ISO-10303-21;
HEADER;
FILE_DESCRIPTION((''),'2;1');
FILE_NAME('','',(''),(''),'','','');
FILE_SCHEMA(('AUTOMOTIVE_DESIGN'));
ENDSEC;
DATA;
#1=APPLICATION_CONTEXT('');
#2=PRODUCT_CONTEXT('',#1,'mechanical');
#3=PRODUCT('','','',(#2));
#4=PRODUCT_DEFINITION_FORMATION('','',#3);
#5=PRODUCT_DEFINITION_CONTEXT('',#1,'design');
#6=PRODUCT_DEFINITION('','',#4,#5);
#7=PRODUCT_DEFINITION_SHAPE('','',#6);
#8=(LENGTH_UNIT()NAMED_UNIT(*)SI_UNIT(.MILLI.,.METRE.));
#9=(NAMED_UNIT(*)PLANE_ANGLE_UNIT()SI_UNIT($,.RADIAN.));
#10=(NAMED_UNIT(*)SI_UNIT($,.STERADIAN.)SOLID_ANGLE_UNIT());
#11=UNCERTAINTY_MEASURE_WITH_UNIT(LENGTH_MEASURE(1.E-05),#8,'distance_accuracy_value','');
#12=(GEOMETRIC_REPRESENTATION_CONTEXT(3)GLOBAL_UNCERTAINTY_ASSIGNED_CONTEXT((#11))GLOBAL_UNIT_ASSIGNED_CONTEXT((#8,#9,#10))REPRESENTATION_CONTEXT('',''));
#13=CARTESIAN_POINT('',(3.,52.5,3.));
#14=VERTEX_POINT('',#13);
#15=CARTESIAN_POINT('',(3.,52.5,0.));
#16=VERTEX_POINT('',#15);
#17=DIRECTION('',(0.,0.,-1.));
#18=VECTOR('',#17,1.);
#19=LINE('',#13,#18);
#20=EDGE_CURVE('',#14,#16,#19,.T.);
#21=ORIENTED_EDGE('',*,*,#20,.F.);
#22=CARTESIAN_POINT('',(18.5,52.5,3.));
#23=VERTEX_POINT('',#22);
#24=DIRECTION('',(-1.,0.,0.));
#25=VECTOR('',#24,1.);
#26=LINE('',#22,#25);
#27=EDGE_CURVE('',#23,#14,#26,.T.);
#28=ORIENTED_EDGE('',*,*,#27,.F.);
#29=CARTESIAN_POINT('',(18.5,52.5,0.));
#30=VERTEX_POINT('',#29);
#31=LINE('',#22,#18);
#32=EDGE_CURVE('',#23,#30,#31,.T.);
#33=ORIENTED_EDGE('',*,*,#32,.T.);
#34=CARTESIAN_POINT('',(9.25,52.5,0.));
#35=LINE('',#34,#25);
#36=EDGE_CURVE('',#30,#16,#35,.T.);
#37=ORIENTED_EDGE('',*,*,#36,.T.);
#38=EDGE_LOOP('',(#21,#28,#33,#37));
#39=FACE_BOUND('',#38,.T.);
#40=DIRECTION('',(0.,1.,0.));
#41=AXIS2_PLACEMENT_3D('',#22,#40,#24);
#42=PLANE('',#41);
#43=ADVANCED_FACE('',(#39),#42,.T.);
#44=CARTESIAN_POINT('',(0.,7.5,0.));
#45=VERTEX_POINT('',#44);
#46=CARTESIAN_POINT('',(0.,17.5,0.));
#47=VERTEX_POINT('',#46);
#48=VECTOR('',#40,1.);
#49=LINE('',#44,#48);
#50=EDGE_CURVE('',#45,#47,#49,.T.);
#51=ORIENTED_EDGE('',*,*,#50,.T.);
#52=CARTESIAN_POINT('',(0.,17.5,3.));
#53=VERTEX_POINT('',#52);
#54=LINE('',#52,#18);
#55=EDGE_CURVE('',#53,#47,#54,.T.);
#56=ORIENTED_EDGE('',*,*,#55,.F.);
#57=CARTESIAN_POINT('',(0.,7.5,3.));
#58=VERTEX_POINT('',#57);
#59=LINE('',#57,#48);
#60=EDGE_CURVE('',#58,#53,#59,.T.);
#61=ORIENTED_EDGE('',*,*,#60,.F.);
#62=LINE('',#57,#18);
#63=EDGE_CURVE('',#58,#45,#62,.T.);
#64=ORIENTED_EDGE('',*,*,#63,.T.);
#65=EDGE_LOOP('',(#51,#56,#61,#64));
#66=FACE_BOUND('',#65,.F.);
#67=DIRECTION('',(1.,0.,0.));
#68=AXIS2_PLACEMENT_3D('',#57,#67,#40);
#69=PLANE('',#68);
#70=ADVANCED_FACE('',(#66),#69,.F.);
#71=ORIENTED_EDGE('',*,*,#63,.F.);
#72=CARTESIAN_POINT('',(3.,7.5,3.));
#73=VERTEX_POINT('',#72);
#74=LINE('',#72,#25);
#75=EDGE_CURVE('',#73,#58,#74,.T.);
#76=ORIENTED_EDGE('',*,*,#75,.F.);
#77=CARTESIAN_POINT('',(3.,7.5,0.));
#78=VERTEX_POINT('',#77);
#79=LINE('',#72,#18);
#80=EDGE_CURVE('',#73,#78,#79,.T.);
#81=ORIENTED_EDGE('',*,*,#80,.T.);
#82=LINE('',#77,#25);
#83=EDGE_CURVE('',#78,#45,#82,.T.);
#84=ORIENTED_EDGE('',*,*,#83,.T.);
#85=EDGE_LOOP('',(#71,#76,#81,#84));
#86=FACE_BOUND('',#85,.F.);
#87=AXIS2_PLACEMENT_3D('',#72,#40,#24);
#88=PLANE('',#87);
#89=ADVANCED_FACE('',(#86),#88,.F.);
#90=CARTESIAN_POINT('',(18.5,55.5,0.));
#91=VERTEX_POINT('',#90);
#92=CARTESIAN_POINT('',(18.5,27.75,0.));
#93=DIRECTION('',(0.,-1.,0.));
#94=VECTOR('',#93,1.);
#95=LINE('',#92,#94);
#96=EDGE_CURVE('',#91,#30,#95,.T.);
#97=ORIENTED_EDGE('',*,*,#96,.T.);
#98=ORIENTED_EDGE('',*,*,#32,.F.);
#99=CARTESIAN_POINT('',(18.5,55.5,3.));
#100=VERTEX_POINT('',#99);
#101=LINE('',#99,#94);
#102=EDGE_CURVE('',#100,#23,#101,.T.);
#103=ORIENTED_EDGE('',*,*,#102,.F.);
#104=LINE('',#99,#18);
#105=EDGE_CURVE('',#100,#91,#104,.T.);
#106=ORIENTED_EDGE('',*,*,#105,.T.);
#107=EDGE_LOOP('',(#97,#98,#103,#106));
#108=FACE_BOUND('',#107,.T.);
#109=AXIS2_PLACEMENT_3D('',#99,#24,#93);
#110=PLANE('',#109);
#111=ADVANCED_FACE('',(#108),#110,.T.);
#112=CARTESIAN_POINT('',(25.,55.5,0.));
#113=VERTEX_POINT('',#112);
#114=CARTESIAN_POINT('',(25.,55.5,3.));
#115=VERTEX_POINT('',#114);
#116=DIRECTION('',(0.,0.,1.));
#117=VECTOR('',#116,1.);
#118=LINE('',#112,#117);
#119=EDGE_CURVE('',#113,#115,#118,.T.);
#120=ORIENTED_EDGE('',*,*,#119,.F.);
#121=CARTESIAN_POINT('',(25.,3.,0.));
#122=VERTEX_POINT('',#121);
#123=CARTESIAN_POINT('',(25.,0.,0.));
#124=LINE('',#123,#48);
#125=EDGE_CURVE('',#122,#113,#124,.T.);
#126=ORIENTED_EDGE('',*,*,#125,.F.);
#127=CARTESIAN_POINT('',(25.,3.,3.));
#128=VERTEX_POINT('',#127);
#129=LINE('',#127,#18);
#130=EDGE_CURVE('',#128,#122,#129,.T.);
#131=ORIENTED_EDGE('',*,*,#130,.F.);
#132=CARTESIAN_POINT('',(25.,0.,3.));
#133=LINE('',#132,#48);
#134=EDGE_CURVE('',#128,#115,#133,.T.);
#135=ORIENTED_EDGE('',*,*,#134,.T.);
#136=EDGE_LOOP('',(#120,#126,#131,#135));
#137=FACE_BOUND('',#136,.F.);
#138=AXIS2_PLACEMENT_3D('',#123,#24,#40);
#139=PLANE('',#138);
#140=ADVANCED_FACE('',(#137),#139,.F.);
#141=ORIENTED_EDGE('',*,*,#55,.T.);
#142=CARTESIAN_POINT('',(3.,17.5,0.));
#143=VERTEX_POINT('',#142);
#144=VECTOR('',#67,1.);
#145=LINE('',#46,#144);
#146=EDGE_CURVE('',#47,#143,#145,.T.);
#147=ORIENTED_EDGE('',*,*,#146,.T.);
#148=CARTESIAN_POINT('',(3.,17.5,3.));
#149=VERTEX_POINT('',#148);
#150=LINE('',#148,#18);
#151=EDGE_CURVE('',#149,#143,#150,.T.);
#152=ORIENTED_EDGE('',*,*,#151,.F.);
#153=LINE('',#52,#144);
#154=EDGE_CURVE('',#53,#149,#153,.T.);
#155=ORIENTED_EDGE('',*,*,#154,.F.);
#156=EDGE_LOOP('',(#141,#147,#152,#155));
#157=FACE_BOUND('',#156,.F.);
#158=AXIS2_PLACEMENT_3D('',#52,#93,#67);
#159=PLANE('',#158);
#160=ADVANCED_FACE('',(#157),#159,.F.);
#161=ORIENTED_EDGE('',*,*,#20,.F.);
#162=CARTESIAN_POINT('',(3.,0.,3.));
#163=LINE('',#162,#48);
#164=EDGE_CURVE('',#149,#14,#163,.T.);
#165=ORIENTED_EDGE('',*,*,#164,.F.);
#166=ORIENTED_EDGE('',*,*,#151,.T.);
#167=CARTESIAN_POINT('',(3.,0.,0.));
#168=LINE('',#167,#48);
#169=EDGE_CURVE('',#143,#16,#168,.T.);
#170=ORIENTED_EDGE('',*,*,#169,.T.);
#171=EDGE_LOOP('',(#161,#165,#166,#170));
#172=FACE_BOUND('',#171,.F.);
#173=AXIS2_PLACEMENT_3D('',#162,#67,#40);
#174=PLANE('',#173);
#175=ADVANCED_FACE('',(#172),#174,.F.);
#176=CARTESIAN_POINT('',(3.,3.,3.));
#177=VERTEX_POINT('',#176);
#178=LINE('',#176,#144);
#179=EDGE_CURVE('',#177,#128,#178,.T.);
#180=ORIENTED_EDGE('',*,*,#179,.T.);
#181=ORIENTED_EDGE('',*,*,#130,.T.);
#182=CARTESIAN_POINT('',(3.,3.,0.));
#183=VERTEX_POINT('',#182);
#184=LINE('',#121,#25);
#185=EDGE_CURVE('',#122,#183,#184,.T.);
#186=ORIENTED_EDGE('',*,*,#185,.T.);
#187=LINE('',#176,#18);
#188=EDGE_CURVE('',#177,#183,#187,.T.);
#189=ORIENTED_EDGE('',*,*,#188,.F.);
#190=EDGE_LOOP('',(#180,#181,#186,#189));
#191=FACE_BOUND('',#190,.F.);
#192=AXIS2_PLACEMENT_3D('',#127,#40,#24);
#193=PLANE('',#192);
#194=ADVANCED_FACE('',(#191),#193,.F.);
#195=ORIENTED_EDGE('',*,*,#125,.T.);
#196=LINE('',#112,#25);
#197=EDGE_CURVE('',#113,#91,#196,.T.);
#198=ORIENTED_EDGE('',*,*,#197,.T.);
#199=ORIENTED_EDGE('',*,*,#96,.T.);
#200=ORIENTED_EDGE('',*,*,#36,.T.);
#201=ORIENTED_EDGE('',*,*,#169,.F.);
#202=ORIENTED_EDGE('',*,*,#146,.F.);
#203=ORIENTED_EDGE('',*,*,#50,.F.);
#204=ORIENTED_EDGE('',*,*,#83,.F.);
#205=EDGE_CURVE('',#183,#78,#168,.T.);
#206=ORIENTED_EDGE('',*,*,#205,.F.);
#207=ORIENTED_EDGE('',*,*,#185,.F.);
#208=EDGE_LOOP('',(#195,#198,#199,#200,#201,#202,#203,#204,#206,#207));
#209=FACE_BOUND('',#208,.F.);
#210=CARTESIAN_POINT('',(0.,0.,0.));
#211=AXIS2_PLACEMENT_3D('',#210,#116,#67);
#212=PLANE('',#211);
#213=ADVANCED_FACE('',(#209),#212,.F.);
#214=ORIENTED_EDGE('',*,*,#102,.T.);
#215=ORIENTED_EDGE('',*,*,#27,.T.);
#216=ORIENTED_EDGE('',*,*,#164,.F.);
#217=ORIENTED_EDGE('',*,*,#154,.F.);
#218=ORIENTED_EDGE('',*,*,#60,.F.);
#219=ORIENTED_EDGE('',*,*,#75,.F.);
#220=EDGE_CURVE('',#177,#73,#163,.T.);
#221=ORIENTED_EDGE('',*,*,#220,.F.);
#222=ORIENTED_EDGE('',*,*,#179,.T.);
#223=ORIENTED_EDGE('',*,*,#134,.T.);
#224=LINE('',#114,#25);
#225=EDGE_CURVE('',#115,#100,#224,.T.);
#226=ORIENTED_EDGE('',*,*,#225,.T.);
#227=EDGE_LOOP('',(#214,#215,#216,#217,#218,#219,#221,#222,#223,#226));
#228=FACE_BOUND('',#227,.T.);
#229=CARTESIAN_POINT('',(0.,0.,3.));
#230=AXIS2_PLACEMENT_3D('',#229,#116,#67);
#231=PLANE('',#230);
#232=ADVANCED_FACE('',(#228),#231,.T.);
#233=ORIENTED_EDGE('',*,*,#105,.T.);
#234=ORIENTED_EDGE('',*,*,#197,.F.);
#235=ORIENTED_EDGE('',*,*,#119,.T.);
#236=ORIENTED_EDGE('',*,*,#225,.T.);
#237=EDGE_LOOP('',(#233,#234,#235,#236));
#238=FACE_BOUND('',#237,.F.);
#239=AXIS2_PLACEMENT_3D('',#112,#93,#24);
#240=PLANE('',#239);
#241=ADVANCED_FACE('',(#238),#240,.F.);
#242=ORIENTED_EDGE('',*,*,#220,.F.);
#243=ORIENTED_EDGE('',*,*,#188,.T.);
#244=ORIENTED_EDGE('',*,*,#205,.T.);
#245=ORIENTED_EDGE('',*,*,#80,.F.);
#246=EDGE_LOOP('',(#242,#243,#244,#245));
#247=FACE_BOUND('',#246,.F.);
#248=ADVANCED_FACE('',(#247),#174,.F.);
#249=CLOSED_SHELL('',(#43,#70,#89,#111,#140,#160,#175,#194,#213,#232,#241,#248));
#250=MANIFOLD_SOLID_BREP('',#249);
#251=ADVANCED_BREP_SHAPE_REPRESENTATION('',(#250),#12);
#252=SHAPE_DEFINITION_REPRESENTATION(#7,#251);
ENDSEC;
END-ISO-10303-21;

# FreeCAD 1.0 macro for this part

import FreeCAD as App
import Part
import Sketcher
from FreeCAD import Vector
Q = App.Units.Quantity

doc = App.newDocument("Part")
body = doc.addObject("PartDesign::Body", "Body")

# Sketch on XY plane
sketch1 = body.newObject("Sketcher::SketchObject", "Sketch")
sketch1.AttachmentSupport = (doc.getObject("XY_Plane"), [""])
sketch1.MapMode = "FlatFace"
sketch1.addGeometry(Part.LineSegment(Vector(0, 56, 0), Vector(0, 0, 0)), False)
sketch1.addGeometry(Part.LineSegment(Vector(0, 0, 0), Vector(25, 0, 0)), False)
sketch1.addGeometry(Part.LineSegment(Vector(25, 0, 0), Vector(25, 56, 0)), False)
sketch1.addGeometry(Part.LineSegment(Vector(25, 56, 0), Vector(0, 56, 0)), False)
sketch1.addConstraint(Sketcher.Constraint("Coincident", 0, 2, 1, 1))
sketch1.addConstraint(Sketcher.Constraint("Coincident", 1, 2, 2, 1))
sketch1.addConstraint(Sketcher.Constraint("Coincident", 2, 2, 3, 1))
sketch1.addConstraint(Sketcher.Constraint("Coincident", 3, 2, 0, 1))
sketch1.addConstraint(Sketcher.Constraint("Vertical", 0))
sketch1.addConstraint(Sketcher.Constraint("Horizontal", 1))
sketch1.addConstraint(Sketcher.Constraint("Vertical", 2))
sketch1.addConstraint(Sketcher.Constraint("Horizontal", 3))
sketch1.addConstraint(Sketcher.Constraint("Coincident", 0, 2, -1, 1))
sketch1.addConstraint(Sketcher.Constraint("DistanceX", 1, 1, 1, 2, Q("25 mm")))
sketch1.addConstraint(Sketcher.Constraint("DistanceY", 0, 2, 0, 1, Q("55.5 mm")))
pad1 = body.newObject("PartDesign::Pad", "Pad")
pad1.Profile = sketch1
pad1.Length = 3

# Sketch on XY plane
sketch2 = body.newObject("Sketcher::SketchObject", "Sketch001")
sketch2.AttachmentSupport = (doc.getObject("XY_Plane"), [""])
sketch2.MapMode = "FlatFace"
sketch2.AttachmentOffset = App.Placement(Vector(0, 0, 3), App.Rotation())
sketch2.addGeometry(Part.LineSegment(Vector(3, 55.5, 0), Vector(0, 55.5, 0)), False)
sketch2.addGeometry(Part.LineSegment(Vector(0, 55.5, 0), Vector(0, 0, 0)), False)
sketch2.addGeometry(Part.LineSegment(Vector(0, 0, 0), Vector(3, 0, 0)), False)
sketch2.addGeometry(Part.LineSegment(Vector(3, 0, 0), Vector(3, 55.5, 0)), False)
sketch2.addConstraint(Sketcher.Constraint("Coincident", 0, 2, 1, 1))
sketch2.addConstraint(Sketcher.Constraint("Coincident", 1, 2, 2, 1))
sketch2.addConstraint(Sketcher.Constraint("Coincident", 2, 2, 3, 1))
sketch2.addConstraint(Sketcher.Constraint("Coincident", 3, 2, 0, 1))
sketch2.addConstraint(Sketcher.Constraint("Horizontal", 0))
sketch2.addConstraint(Sketcher.Constraint("Vertical", 1))
sketch2.addConstraint(Sketcher.Constraint("Horizontal", 2))
sketch2.addConstraint(Sketcher.Constraint("Vertical", 3))
sketch2.addConstraint(Sketcher.Constraint("Coincident", 1, 2, -1, 1))
sketch2.addConstraint(Sketcher.Constraint("DistanceX", 0, 2, 0, 1, Q("3 mm")))
sketch2.addConstraint(Sketcher.Constraint("DistanceY", 1, 2, 1, 1, Q("55.5 mm")))
pocket1 = body.newObject("PartDesign::Pocket", "Pocket")
pocket1.Profile = sketch2
pocket1.Type = "ThroughAll"

# Sketch on XY plane
sketch3 = body.newObject("Sketcher::SketchObject", "Sketch002")
sketch3.AttachmentSupport = (doc.getObject("XY_Plane"), [""])
sketch3.MapMode = "FlatFace"
sketch3.AttachmentOffset = App.Placement(Vector(0, 0, 3), App.Rotation())
sketch3.addGeometry(Part.LineSegment(Vector(3, 3, 0), Vector(3, 0, 0)), False)
sketch3.addGeometry(Part.LineSegment(Vector(3, 0, 0), Vector(8, 0, 0)), False)
sketch3.addGeometry(Part.LineSegment(Vector(8, 0, 0), Vector(8, 3, 0)), False)
sketch3.addGeometry(Part.LineSegment(Vector(8, 3, 0), Vector(3, 3, 0)), False)
sketch3.addGeometry(Part.LineSegment(Vector(18, 3, 0), Vector(18, 0, 0)), False)
sketch3.addGeometry(Part.LineSegment(Vector(18, 0, 0), Vector(25, 0, 0)), False)
sketch3.addGeometry(Part.LineSegment(Vector(25, 0, 0), Vector(25, 3, 0)), False)
sketch3.addGeometry(Part.LineSegment(Vector(25, 3, 0), Vector(18, 3, 0)), False)
sketch3.addConstraint(Sketcher.Constraint("Coincident", 0, 2, 1, 1))
sketch3.addConstraint(Sketcher.Constraint("Coincident", 1, 2, 2, 1))
sketch3.addConstraint(Sketcher.Constraint("Coincident", 2, 2, 3, 1))
sketch3.addConstraint(Sketcher.Constraint("Coincident", 3, 2, 0, 1))
sketch3.addConstraint(Sketcher.Constraint("Coincident", 4, 2, 5, 1))
sketch3.addConstraint(Sketcher.Constraint("Coincident", 5, 2, 6, 1))
sketch3.addConstraint(Sketcher.Constraint("Coincident", 6, 2, 7, 1))
sketch3.addConstraint(Sketcher.Constraint("Coincident", 7, 2, 4, 1))
sketch3.addConstraint(Sketcher.Constraint("Vertical", 0))
sketch3.addConstraint(Sketcher.Constraint("Horizontal", 1))
sketch3.addConstraint(Sketcher.Constraint("Vertical", 2))
sketch3.addConstraint(Sketcher.Constraint("Horizontal", 3))
sketch3.addConstraint(Sketcher.Constraint("Vertical", 4))
sketch3.addConstraint(Sketcher.Constraint("Horizontal", 5))
sketch3.addConstraint(Sketcher.Constraint("Vertical", 6))
sketch3.addConstraint(Sketcher.Constraint("Horizontal", 7))
sketch3.addConstraint(Sketcher.Constraint("PointOnObject", 0, 2, -1))
sketch3.addConstraint(Sketcher.Constraint("PointOnObject", 4, 2, -1))
sketch3.addConstraint(Sketcher.Constraint("Horizontal", 3, 2, 6, 2))
sketch3.addConstraint(Sketcher.Constraint("DistanceX", 1, 1, 1, 2, Q("5 mm")))
sketch3.addConstraint(Sketcher.Constraint("DistanceY", 0, 2, 0, 1, Q("3 mm")))
sketch3.addConstraint(Sketcher.Constraint("DistanceX", -1, 1, 0, 2, Q("3 mm")))
sketch3.addConstraint(Sketcher.Constraint("DistanceX", 1, 2, 4, 2, Q("10 mm")))
sketch3.addConstraint(Sketcher.Constraint("DistanceX", 5, 1, 5, 2, Q("7 mm")))
pocket2 = body.newObject("PartDesign::Pocket", "Pocket001")
pocket2.Profile = sketch3
pocket2.Type = "ThroughAll"

# Sketch on XY plane
sketch4 = body.newObject("Sketcher::SketchObject", "Sketch003")
sketch4.AttachmentSupport = (doc.getObject("XY_Plane"), [""])
sketch4.MapMode = "FlatFace"
sketch4.AttachmentOffset = App.Placement(Vector(0, 0, 3), App.Rotation())
sketch4.addGeometry(Part.LineSegment(Vector(18.5, 52.5, 0), Vector(18.5, 55.5, 0)), False)
sketch4.addGeometry(Part.LineSegment(Vector(18.5, 55.5, 0), Vector(3, 55.5, 0)), False)
sketch4.addGeometry(Part.LineSegment(Vector(3, 55.5, 0), Vector(3, 52.5, 0)), False)
sketch4.addGeometry(Part.LineSegment(Vector(3, 52.5, 0), Vector(18.5, 52.5, 0)), False)
sketch4.addConstraint(Sketcher.Constraint("Coincident", 0, 2, 1, 1))
sketch4.addConstraint(Sketcher.Constraint("Coincident", 1, 2, 2, 1))
sketch4.addConstraint(Sketcher.Constraint("Coincident", 2, 2, 3, 1))
sketch4.addConstraint(Sketcher.Constraint("Coincident", 3, 2, 0, 1))
sketch4.addConstraint(Sketcher.Constraint("Vertical", 0))
sketch4.addConstraint(Sketcher.Constraint("Horizontal", 1))
sketch4.addConstraint(Sketcher.Constraint("Vertical", 2))
sketch4.addConstraint(Sketcher.Constraint("Horizontal", 3))
sketch4.addConstraint(Sketcher.Constraint("DistanceY", 0, 1, 0, 2, Q("3 mm")))
sketch4.addConstraint(Sketcher.Constraint("DistanceX", -1, 1, 1, 2, Q("3 mm")))
sketch4.addConstraint(Sketcher.Constraint("DistanceX", 1, 2, 1, 1, Q("15.5 mm")))
sketch4.addConstraint(Sketcher.Constraint("DistanceY", -1, 1, 0, 2, Q("55.5 mm")))
pocket3 = body.newObject("PartDesign::Pocket", "Pocket002")
pocket3.Profile = sketch4
pocket3.Type = "ThroughAll"

# Sketch on XY plane
sketch5 = body.newObject("Sketcher::SketchObject", "Sketch004")
sketch5.AttachmentSupport = (doc.getObject("XY_Plane"), [""])
sketch5.MapMode = "FlatFace"
sketch5.AttachmentOffset = App.Placement(Vector(0, 0, 3), App.Rotation())
sketch5.addGeometry(Part.LineSegment(Vector(8, 3, 0), Vector(8, 0, 0)), False)
sketch5.addGeometry(Part.LineSegment(Vector(8, 0, 0), Vector(18, 0, 0)), False)
sketch5.addGeometry(Part.LineSegment(Vector(18, 0, 0), Vector(18, 3, 0)), False)
sketch5.addGeometry(Part.LineSegment(Vector(18, 3, 0), Vector(8, 3, 0)), False)
sketch5.addConstraint(Sketcher.Constraint("Coincident", 0, 2, 1, 1))
sketch5.addConstraint(Sketcher.Constraint("Coincident", 1, 2, 2, 1))
sketch5.addConstraint(Sketcher.Constraint("Coincident", 2, 2, 3, 1))
sketch5.addConstraint(Sketcher.Constraint("Coincident", 3, 2, 0, 1))
sketch5.addConstraint(Sketcher.Constraint("Vertical", 0))
sketch5.addConstraint(Sketcher.Constraint("Horizontal", 1))
sketch5.addConstraint(Sketcher.Constraint("Vertical", 2))
sketch5.addConstraint(Sketcher.Constraint("Horizontal", 3))
sketch5.addConstraint(Sketcher.Constraint("PointOnObject", 0, 2, -1))
sketch5.addConstraint(Sketcher.Constraint("DistanceX", 1, 1, 1, 2, Q("10 mm")))
sketch5.addConstraint(Sketcher.Constraint("DistanceY", 0, 2, 0, 1, Q("3 mm")))
sketch5.addConstraint(Sketcher.Constraint("DistanceX", -1, 1, 0, 2, Q("8 mm")))
pocket4 = body.newObject("PartDesign::Pocket", "Pocket003")
pocket4.Profile = sketch5
pocket4.Type = "ThroughAll"

# Sketch on XY plane
sketch6 = body.newObject("Sketcher::SketchObject", "Sketch005")
sketch6.AttachmentSupport = (doc.getObject("XY_Plane"), [""])
sketch6.MapMode = "FlatFace"
sketch6.AttachmentOffset = App.Placement(Vector(0, 0, 3), App.Rotation())
sketch6.addGeometry(Part.LineSegment(Vector(0, 7.5, 0), Vector(3, 7.5, 0)), False)
sketch6.addGeometry(Part.LineSegment(Vector(3, 7.5, 0), Vector(3, 17.5, 0)), False)
sketch6.addGeometry(Part.LineSegment(Vector(3, 17.5, 0), Vector(0, 17.5, 0)), False)
sketch6.addGeometry(Part.LineSegment(Vector(0, 17.5, 0), Vector(0, 7.5, 0)), False)
sketch6.addConstraint(Sketcher.Constraint("Coincident", 0, 2, 1, 1))
sketch6.addConstraint(Sketcher.Constraint("Coincident", 1, 2, 2, 1))
sketch6.addConstraint(Sketcher.Constraint("Coincident", 2, 2, 3, 1))
sketch6.addConstraint(Sketcher.Constraint("Coincident", 3, 2, 0, 1))
sketch6.addConstraint(Sketcher.Constraint("Horizontal", 0))
sketch6.addConstraint(Sketcher.Constraint("Vertical", 1))
sketch6.addConstraint(Sketcher.Constraint("Horizontal", 2))
sketch6.addConstraint(Sketcher.Constraint("Vertical", 3))
sketch6.addConstraint(Sketcher.Constraint("PointOnObject", 2, 2, -2))
sketch6.addConstraint(Sketcher.Constraint("DistanceX", 0, 1, 0, 2, Q("3 mm")))
sketch6.addConstraint(Sketcher.Constraint("DistanceY", 1, 1, 1, 2, Q("10 mm")))
sketch6.addConstraint(Sketcher.Constraint("DistanceY", -1, 1, 0, 2, Q("7.5 mm")))
pad2 = body.newObject("PartDesign::Pad", "Pad001")
pad2.Profile = sketch6
pad2.Length = 3
pad2.Reversed = True

doc.recompute()
